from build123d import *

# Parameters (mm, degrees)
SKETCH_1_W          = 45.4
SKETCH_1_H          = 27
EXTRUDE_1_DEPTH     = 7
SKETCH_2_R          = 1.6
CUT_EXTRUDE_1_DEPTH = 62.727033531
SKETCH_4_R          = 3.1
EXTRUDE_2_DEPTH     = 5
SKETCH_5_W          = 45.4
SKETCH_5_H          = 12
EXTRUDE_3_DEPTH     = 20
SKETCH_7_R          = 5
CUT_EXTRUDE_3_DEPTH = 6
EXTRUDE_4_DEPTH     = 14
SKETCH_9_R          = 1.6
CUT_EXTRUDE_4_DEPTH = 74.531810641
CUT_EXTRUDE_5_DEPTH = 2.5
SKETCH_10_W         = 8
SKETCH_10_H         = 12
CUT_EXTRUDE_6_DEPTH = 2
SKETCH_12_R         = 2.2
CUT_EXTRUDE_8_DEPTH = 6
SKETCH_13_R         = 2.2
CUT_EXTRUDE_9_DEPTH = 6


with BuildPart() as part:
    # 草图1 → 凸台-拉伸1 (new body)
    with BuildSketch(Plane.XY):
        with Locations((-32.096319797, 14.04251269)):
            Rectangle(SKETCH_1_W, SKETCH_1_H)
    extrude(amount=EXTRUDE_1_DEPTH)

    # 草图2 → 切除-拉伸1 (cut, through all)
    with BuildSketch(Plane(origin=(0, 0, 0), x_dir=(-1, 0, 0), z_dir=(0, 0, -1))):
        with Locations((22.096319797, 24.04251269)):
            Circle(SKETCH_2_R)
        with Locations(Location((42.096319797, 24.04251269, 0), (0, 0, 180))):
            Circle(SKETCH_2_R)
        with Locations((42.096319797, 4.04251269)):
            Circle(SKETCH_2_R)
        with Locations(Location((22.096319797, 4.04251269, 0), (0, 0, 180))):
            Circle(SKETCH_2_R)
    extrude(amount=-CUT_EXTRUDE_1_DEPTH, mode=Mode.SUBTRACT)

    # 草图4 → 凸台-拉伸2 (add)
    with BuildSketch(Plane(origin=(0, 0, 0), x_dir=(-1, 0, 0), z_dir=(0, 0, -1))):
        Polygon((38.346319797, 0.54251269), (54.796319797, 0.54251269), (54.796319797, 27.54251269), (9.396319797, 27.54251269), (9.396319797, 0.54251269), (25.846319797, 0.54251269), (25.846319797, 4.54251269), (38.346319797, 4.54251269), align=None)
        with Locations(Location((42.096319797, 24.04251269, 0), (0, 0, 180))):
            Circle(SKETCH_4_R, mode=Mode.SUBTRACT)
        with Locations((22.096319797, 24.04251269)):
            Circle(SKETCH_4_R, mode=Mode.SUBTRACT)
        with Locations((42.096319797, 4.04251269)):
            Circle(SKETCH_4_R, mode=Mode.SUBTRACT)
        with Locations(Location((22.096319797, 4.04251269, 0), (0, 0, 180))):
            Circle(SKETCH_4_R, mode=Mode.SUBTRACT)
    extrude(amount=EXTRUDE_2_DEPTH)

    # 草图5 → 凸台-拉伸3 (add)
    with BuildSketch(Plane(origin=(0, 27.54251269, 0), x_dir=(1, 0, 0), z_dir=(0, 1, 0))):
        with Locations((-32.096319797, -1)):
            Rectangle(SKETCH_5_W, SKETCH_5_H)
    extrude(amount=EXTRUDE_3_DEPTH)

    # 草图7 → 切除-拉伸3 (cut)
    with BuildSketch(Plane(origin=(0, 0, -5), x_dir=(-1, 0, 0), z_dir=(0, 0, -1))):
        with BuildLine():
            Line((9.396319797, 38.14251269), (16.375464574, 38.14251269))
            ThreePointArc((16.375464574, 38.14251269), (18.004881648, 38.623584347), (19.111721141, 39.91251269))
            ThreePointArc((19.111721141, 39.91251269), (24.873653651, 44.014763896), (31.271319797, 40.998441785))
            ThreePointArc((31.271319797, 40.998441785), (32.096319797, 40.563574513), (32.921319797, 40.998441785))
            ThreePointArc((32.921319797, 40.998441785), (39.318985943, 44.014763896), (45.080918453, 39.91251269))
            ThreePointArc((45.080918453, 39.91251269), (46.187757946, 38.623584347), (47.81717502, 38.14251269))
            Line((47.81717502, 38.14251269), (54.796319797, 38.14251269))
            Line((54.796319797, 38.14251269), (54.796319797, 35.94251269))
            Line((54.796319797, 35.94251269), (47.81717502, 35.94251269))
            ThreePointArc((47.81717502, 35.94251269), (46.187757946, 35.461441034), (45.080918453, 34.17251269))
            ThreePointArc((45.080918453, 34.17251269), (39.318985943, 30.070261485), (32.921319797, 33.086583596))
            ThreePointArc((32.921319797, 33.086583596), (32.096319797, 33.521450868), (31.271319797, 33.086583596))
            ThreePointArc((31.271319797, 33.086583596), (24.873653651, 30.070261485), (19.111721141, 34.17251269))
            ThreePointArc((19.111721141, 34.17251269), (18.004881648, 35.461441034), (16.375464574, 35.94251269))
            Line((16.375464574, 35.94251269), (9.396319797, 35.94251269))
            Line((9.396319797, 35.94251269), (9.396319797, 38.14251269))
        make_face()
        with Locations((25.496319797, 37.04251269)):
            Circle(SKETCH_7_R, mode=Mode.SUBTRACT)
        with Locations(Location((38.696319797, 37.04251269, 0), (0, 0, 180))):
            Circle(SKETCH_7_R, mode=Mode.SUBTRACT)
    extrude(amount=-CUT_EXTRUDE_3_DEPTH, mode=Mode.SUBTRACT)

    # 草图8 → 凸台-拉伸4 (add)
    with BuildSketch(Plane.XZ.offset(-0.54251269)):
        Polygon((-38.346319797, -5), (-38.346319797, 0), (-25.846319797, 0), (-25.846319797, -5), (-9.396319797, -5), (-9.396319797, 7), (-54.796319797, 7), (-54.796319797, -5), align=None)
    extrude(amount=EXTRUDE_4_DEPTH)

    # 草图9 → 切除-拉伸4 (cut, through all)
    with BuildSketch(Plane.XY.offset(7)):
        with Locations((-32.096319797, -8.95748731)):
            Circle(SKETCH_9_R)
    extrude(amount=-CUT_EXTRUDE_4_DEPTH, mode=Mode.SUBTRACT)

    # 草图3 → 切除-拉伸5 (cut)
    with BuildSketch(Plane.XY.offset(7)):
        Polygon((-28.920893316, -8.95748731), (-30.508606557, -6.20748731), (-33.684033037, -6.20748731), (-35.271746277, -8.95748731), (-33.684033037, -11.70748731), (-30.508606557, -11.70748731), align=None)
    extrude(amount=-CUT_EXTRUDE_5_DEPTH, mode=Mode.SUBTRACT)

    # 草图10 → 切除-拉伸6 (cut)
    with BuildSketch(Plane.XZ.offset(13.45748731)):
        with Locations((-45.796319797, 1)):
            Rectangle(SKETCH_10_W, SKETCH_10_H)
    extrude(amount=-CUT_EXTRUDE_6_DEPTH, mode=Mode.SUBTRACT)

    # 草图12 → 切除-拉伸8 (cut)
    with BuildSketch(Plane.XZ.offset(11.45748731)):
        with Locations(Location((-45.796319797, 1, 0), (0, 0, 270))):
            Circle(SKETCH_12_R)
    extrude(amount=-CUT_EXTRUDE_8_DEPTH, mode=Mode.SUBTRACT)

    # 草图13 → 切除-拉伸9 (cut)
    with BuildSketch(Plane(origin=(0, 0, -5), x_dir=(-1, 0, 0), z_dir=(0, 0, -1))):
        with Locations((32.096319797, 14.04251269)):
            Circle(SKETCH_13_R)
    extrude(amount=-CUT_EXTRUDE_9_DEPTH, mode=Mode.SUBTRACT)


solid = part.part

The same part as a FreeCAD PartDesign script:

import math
import FreeCAD as App
import Part
import Sketcher

V = App.Vector
Q = App.Units.Quantity

doc = App.newDocument("Part")
body = doc.addObject("PartDesign::Body", "Body")

sketch1 = body.newObject("Sketcher::SketchObject", "Sketch")
sketch1.AttachmentSupport = (doc.getObject("XY_Plane"), [""])
sketch1.MapMode = "FlatFace"
sketch1.addGeometry([
    Part.LineSegment(V(-55, 28, 0), V(-55, 1, 0)),
    Part.LineSegment(V(-55, 1, 0), V(-9, 1, 0)),
    Part.LineSegment(V(-9, 1, 0), V(-9, 28, 0)),
    Part.LineSegment(V(-9, 28, 0), V(-55, 28, 0)),
], False)
sketch1.addConstraint([
    Sketcher.Constraint("Coincident", 0, 2, 1, 1),
    Sketcher.Constraint("Coincident", 1, 2, 2, 1),
    Sketcher.Constraint("Coincident", 2, 2, 3, 1),
    Sketcher.Constraint("Coincident", 3, 2, 0, 1),
    Sketcher.Constraint("Vertical", 0),
    Sketcher.Constraint("Horizontal", 1),
    Sketcher.Constraint("Vertical", 2),
    Sketcher.Constraint("Horizontal", 3),
    Sketcher.Constraint("DistanceY", 0, 2, 0, 1, Q("27 mm")),
    Sketcher.Constraint("DistanceX", 1, 1, 1, 2, Q("45.4 mm")),
    Sketcher.Constraint("DistanceX", 0, 2, -1, 1, Q("54.79632 mm")),
    Sketcher.Constraint("DistanceY", -1, 1, 0, 2, Q("0.542513 mm")),
])
pad1 = body.newObject("PartDesign::Pad", "Pad")
pad1.Profile = sketch1
pad1.Length = 7

sketch2 = body.newObject("Sketcher::SketchObject", "Sketch001")
sketch2.AttachmentSupport = (doc.getObject("XY_Plane"), [""])
sketch2.MapMode = "FlatFace"
sketch2.addGeometry([
    Part.Circle(V(-22.1, 24, 0), V(0, 0, 1), 1.6),
    Part.Circle(V(-42.1, 24, 0), V(0, 0, 1), 1.6),
    Part.Circle(V(-42.1, 4, 0), V(0, 0, 1), 1.6),
    Part.Circle(V(-22.1, 4, 0), V(0, 0, 1), 1.6),
], False)
sketch2.addConstraint([
    Sketcher.Constraint("Equal", 0, 1),
    Sketcher.Constraint("Equal", 1, 2),
    Sketcher.Constraint("Equal", 2, 3),
    Sketcher.Constraint("Horizontal", 0, 3, 1, 3),
    Sketcher.Constraint("Horizontal", 2, 3, 3, 3),
    Sketcher.Constraint("Vertical", 1, 3, 2, 3),
    Sketcher.Constraint("Vertical", 0, 3, 3, 3),
    Sketcher.Constraint("Diameter", 0, Q("3.2 mm")),
    Sketcher.Constraint("DistanceX", 1, 3, 0, 3, Q("20 mm")),
    Sketcher.Constraint("DistanceY", 2, 3, 1, 3, Q("20 mm")),
    Sketcher.Constraint("DistanceX", 0, 3, -1, 1, Q("22.09632 mm")),
    Sketcher.Constraint("DistanceY", -1, 1, 0, 3, Q("24.042513 mm")),
])
pocket1 = body.newObject("PartDesign::Pocket", "Pocket")
pocket1.Profile = sketch2
pocket1.Type = "ThroughAll"
pocket1.Reversed = True

sketch3 = body.newObject("Sketcher::SketchObject", "Sketch002")
sketch3.AttachmentSupport = (doc.getObject("XY_Plane"), [""])
sketch3.MapMode = "FlatFace"
sketch3.addGeometry([
    Part.LineSegment(V(-38.3, 0.5, 0), V(-54.8, 0.5, 0)),
    Part.LineSegment(V(-54.8, 0.5, 0), V(-54.8, 27.5, 0)),
    Part.LineSegment(V(-54.8, 27.5, 0), V(-9.4, 27.5, 0)),
    Part.LineSegment(V(-9.4, 27.5, 0), V(-9.4, 0.5, 0)),
    Part.LineSegment(V(-9.4, 0.5, 0), V(-25.8, 0.5, 0)),
    Part.LineSegment(V(-25.8, 0.5, 0), V(-25.8, 4.5, 0)),
    Part.LineSegment(V(-25.8, 4.5, 0), V(-38.3, 4.5, 0)),
    Part.LineSegment(V(-38.3, 4.5, 0), V(-38.3, 0.5, 0)),
    Part.Circle(V(-22.1, 4, 0), V(0, 0, 1), 3.1),
    Part.Circle(V(-42.1, 4, 0), V(0, 0, 1), 3.1),
    Part.Circle(V(-22.1, 24, 0), V(0, 0, 1), 3.1),
    Part.Circle(V(-42.1, 24, 0), V(0, 0, 1), 3.1),
], False)
sketch3.addConstraint([
    Sketcher.Constraint("Coincident", 0, 2, 1, 1),
    Sketcher.Constraint("Coincident", 1, 2, 2, 1),
    Sketcher.Constraint("Coincident", 2, 2, 3, 1),
    Sketcher.Constraint("Coincident", 3, 2, 4, 1),
    Sketcher.Constraint("Coincident", 4, 2, 5, 1),
    Sketcher.Constraint("Coincident", 5, 2, 6, 1),
    Sketcher.Constraint("Coincident", 6, 2, 7, 1),
    Sketcher.Constraint("Coincident", 7, 2, 0, 1),
    Sketcher.Constraint("Horizontal", 0),
    Sketcher.Constraint("Vertical", 1),
    Sketcher.Constraint("Horizontal", 2),
    Sketcher.Constraint("Vertical", 3),
    Sketcher.Constraint("Horizontal", 4),
    Sketcher.Constraint("Vertical", 5),
    Sketcher.Constraint("Horizontal", 6),
    Sketcher.Constraint("Vertical", 7),
    Sketcher.Constraint("Equal", 8, 9),
    Sketcher.Constraint("Equal", 9, 10),
    Sketcher.Constraint("Equal", 10, 11),
    Sketcher.Constraint("Horizontal", 8, 3, 9, 3),
    Sketcher.Constraint("Horizontal", 10, 3, 11, 3),
    Sketcher.Constraint("Horizontal", 0, 2, 3, 2),
    Sketcher.Constraint("Vertical", 8, 3, 10, 3),
    Sketcher.Constraint("Vertical", 9, 3, 11, 3),
    Sketcher.Constraint("Equal", 0, 4),
    Sketcher.Constraint("Diameter", 8, Q("6.2 mm")),
    Sketcher.Constraint("DistanceY", 1, 1, 1, 2, Q("27 mm")),
    Sketcher.Constraint("DistanceY", 5, 1, 5, 2, Q("4 mm")),
    Sketcher.Constraint("DistanceX", 2, 1, 2, 2, Q("45.4 mm")),
    Sketcher.Constraint("DistanceX", 6, 2, 6, 1, Q("12.5 mm")),
    Sketcher.Constraint("DistanceX", 9, 3, 8, 3, Q("20 mm")),
    Sketcher.Constraint("DistanceY", 8, 3, 10, 3, Q("20 mm")),
    Sketcher.Constraint("DistanceX", 0, 2, 9, 3, Q("12.7 mm")),
    Sketcher.Constraint("DistanceY", 0, 2, 9, 3, Q("3.5 mm")),
    Sketcher.Constraint("DistanceX", 8, 3, -1, 1, Q("22.09632 mm")),
    Sketcher.Constraint("DistanceY", -1, 1, 8, 3, Q("4.042513 mm")),
])
pad2 = body.newObject("PartDesign::Pad", "Pad001")
pad2.Profile = sketch3
pad2.Length = 5
pad2.Reversed = True

sketch4 = body.newObject("Sketcher::SketchObject", "Sketch003")
sketch4.AttachmentSupport = (doc.getObject("XZ_Plane"), [""])
sketch4.MapMode = "FlatFace"
sketch4.AttachmentOffset = App.Placement(V(0, 0, -27.542513), App.Rotation())
sketch4.addGeometry([
    Part.LineSegment(V(-55, -5, 0), V(-55, 7, 0)),
    Part.LineSegment(V(-55, 7, 0), V(-9, 7, 0)),
    Part.LineSegment(V(-9, 7, 0), V(-9, -5, 0)),
    Part.LineSegment(V(-9, -5, 0), V(-55, -5, 0)),
], False)
sketch4.addConstraint([
    Sketcher.Constraint("Coincident", 0, 2, 1, 1),
    Sketcher.Constraint("Coincident", 1, 2, 2, 1),
    Sketcher.Constraint("Coincident", 2, 2, 3, 1),
    Sketcher.Constraint("Coincident", 3, 2, 0, 1),
    Sketcher.Constraint("Vertical", 0),
    Sketcher.Constraint("Horizontal", 1),
    Sketcher.Constraint("Vertical", 2),
    Sketcher.Constraint("Horizontal", 3),
    Sketcher.Constraint("DistanceY", 0, 1, 0, 2, Q("12 mm")),
    Sketcher.Constraint("DistanceX", 1, 1, 1, 2, Q("45.4 mm")),
    Sketcher.Constraint("DistanceY", -1, 1, 0, 2, Q("7 mm")),
    Sketcher.Constraint("DistanceX", 0, 2, -1, 1, Q("54.79632 mm")),
])
pad3 = body.newObject("PartDesign::Pad", "Pad002")
pad3.Profile = sketch4
pad3.Length = 20
pad3.Reversed = True

sketch5 = body.newObject("Sketcher::SketchObject", "Sketch004")
sketch5.AttachmentSupport = (doc.getObject("XY_Plane"), [""])
sketch5.MapMode = "FlatFace"
sketch5.AttachmentOffset = App.Placement(V(0, 0, -5), App.Rotation())
sketch5.addGeometry([
    Part.LineSegment(V(-16.4, 38.1, 0), V(-9.4, 38.1, 0)),
    Part.LineSegment(V(-9.4, 38.1, 0), V(-9.4, 35.9, 0)),
    Part.LineSegment(V(-9.4, 35.9, 0), V(-16.4, 35.9, 0)),
    Part.ArcOfCircle(Part.Circle(V(-16.4, 32.9, 0), V(0, 0, 1), 3), math.radians(90), math.radians(156)),
    Part.ArcOfCircle(Part.Circle(V(-25.5, 37, 0), V(0, 0, 1), 7), math.radians(-146), math.radians(-24)),
    Part.ArcOfCircle(Part.Circle(V(-32.1, 32.5, 0), V(0, 0, 1), 1), math.radians(34), math.radians(146)),
    Part.ArcOfCircle(Part.Circle(V(-38.7, 37, 0), V(0, 0, 1), 7), math.radians(-156), math.radians(-34)),
    Part.ArcOfCircle(Part.Circle(V(-47.8, 32.9, 0), V(0, 0, 1), 3), math.radians(24), math.radians(90)),
    Part.LineSegment(V(-47.8, 35.9, 0), V(-54.8, 35.9, 0)),
    Part.LineSegment(V(-54.8, 35.9, 0), V(-54.8, 38.1, 0)),
    Part.LineSegment(V(-54.8, 38.1, 0), V(-47.8, 38.1, 0)),
    Part.ArcOfCircle(Part.Circle(V(-47.8, 41.1, 0), V(0, 0, 1), 3), math.radians(-90), math.radians(-24)),
    Part.ArcOfCircle(Part.Circle(V(-38.7, 37, 0), V(0, 0, 1), 7), math.radians(34), math.radians(156)),
    Part.ArcOfCircle(Part.Circle(V(-32.1, 41.6, 0), V(0, 0, 1), 1), math.radians(-146), math.radians(-34)),
    Part.ArcOfCircle(Part.Circle(V(-25.5, 37, 0), V(0, 0, 1), 7), math.radians(24), math.radians(146)),
    Part.ArcOfCircle(Part.Circle(V(-16.4, 41.1, 0), V(0, 0, 1), 3), math.radians(-156), math.radians(-90)),
    Part.Circle(V(-38.7, 37, 0), V(0, 0, 1), 5),
    Part.Circle(V(-25.5, 37, 0), V(0, 0, 1), 5),
], False)
sketch5.addConstraint([
    Sketcher.Constraint("Coincident", 0, 2, 1, 1),
    Sketcher.Constraint("Coincident", 1, 2, 2, 1),
    Sketcher.Constraint("Tangent", 2, 2, 3, 1),
    Sketcher.Constraint("Tangent", 3, 2, 4, 2),
    Sketcher.Constraint("Tangent", 4, 1, 5, 1),
    Sketcher.Constraint("Tangent", 5, 2, 6, 2),
    Sketcher.Constraint("Tangent", 6, 1, 7, 1),
    Sketcher.Constraint("Tangent", 7, 2, 8, 1),
    Sketcher.Constraint("Coincident", 8, 2, 9, 1),
    Sketcher.Constraint("Coincident", 9, 2, 10, 1),
    Sketcher.Constraint("Tangent", 10, 2, 11, 1),
    Sketcher.Constraint("Tangent", 11, 2, 12, 2),
    Sketcher.Constraint("Tangent", 12, 1, 13, 1),
    Sketcher.Constraint("Tangent", 13, 2, 14, 2),
    Sketcher.Constraint("Tangent", 14, 1, 15, 1),
    Sketcher.Constraint("Tangent", 15, 2, 0, 1),
    Sketcher.Constraint("Horizontal", 0),
    Sketcher.Constraint("Vertical", 1),
    Sketcher.Constraint("Horizontal", 2),
    Sketcher.Constraint("Horizontal", 8),
    Sketcher.Constraint("Vertical", 9),
    Sketcher.Constraint("Horizontal", 10),
    Sketcher.Constraint("Coincident", 12, 3, 6, 3),
    Sketcher.Constraint("Coincident", 14, 3, 4, 3),
    Sketcher.Constraint("Coincident", 16, 3, 6, 3),
    Sketcher.Constraint("Coincident", 17, 3, 4, 3),
    Sketcher.Constraint("Equal", 4, 6),
    Sketcher.Constraint("Equal", 3, 7),
    Sketcher.Constraint("Equal", 7, 11),
    Sketcher.Constraint("Equal", 6, 12),
    Sketcher.Constraint("Equal", 5, 13),
    Sketcher.Constraint("Equal", 12, 14),
    Sketcher.Constraint("Equal", 11, 15),
    Sketcher.Constraint("Equal", 16, 17),
    Sketcher.Constraint("Horizontal", 4, 3, 6, 3),
    Sketcher.Constraint("Horizontal", 3, 3, 7, 3),
    Sketcher.Constraint("Horizontal", 11, 3, 15, 3),
    Sketcher.Constraint("Vertical", 7, 3, 11, 3),
    Sketcher.Constraint("Equal", 2, 8),
    Sketcher.Constraint("Diameter", 16, Q("10 mm")),
    Sketcher.Constraint("Radius", 3, Q("3 mm")),
    Sketcher.Constraint("Radius", 4, Q("7 mm")),
    Sketcher.Constraint("Radius", 5, Q("1 mm")),
    Sketcher.Constraint("DistanceY", 1, 2, 1, 1, Q("2.2 mm")),
    Sketcher.Constraint("DistanceX", 5, 3, 4, 3, Q("6.6 mm")),
    Sketcher.Constraint("DistanceX", 14, 3, 0, 2, Q("16.1 mm")),
    Sketcher.Constraint("DistanceX", 4, 3, -1, 1, Q("25.49632 mm")),
    Sketcher.Constraint("DistanceY", -1, 1, 5, 3, Q("32.521451 mm")),
])
pocket2 = body.newObject("PartDesign::Pocket", "Pocket001")
pocket2.Profile = sketch5
pocket2.Length = 6
pocket2.Reversed = True

sketch6 = body.newObject("Sketcher::SketchObject", "Sketch005")
sketch6.AttachmentSupport = (doc.getObject("XZ_Plane"), [""])
sketch6.MapMode = "FlatFace"
sketch6.AttachmentOffset = App.Placement(V(0, 0, -0.542513), App.Rotation())
sketch6.addGeometry([
    Part.LineSegment(V(-38, -5, 0), V(-38, 0, 0)),
    Part.LineSegment(V(-38, 0, 0), V(-26, 0, 0)),
    Part.LineSegment(V(-26, 0, 0), V(-26, -5, 0)),
    Part.LineSegment(V(-26, -5, 0), V(-9, -5, 0)),
    Part.LineSegment(V(-9, -5, 0), V(-9, 7, 0)),
    Part.LineSegment(V(-9, 7, 0), V(-55, 7, 0)),
    Part.LineSegment(V(-55, 7, 0), V(-55, -5, 0)),
    Part.LineSegment(V(-55, -5, 0), V(-38, -5, 0)),
], False)
sketch6.addConstraint([
    Sketcher.Constraint("Coincident", 0, 2, 1, 1),
    Sketcher.Constraint("Coincident", 1, 2, 2, 1),
    Sketcher.Constraint("Coincident", 2, 2, 3, 1),
    Sketcher.Constraint("Coincident", 3, 2, 4, 1),
    Sketcher.Constraint("Coincident", 4, 2, 5, 1),
    Sketcher.Constraint("Coincident", 5, 2, 6, 1),
    Sketcher.Constraint("Coincident", 6, 2, 7, 1),
    Sketcher.Constraint("Coincident", 7, 2, 0, 1),
    Sketcher.Constraint("Vertical", 0),
    Sketcher.Constraint("Horizontal", 1),
    Sketcher.Constraint("Vertical", 2),
    Sketcher.Constraint("Horizontal", 3),
    Sketcher.Constraint("Vertical", 4),
    Sketcher.Constraint("Horizontal", 5),
    Sketcher.Constraint("Vertical", 6),
    Sketcher.Constraint("Horizontal", 7),
    Sketcher.Constraint("PointOnObject", 0, 2, -1),
    Sketcher.Constraint("Horizontal", 3, 2, 6, 2),
    Sketcher.Constraint("Equal", 3, 7),
    Sketcher.Constraint("DistanceY", 0, 1, 0, 2, Q("5 mm")),
    Sketcher.Constraint("DistanceY", 4, 1, 4, 2, Q("12 mm")),
    Sketcher.Constraint("DistanceX", 1, 1, 1, 2, Q("12.5 mm")),
    Sketcher.Constraint("DistanceX", 5, 2, 5, 1, Q("45.4 mm")),
    Sketcher.Constraint("DistanceX", 0, 2, -1, 1, Q("38.34632 mm")),
])
pad4 = body.newObject("PartDesign::Pad", "Pad003")
pad4.Profile = sketch6
pad4.Length = 14

sketch7 = body.newObject("Sketcher::SketchObject", "Sketch006")
sketch7.AttachmentSupport = (doc.getObject("XY_Plane"), [""])
sketch7.MapMode = "FlatFace"
sketch7.AttachmentOffset = App.Placement(V(0, 0, 7), App.Rotation())
sketch7.addGeometry(Part.Circle(V(-32.1, -9, 0), V(0, 0, 1), 1.6), False)
sketch7.addConstraint([
    Sketcher.Constraint("Diameter", 0, Q("3.2 mm")),
    Sketcher.Constraint("DistanceX", 0, 3, -1, 1, Q("32.09632 mm")),
    Sketcher.Constraint("DistanceY", 0, 3, -1, 1, Q("8.957487 mm")),
])
pocket3 = body.newObject("PartDesign::Pocket", "Pocket002")
pocket3.Profile = sketch7
pocket3.Type = "ThroughAll"

sketch8 = body.newObject("Sketcher::SketchObject", "Sketch007")
sketch8.AttachmentSupport = (doc.getObject("XY_Plane"), [""])
sketch8.MapMode = "FlatFace"
sketch8.AttachmentOffset = App.Placement(V(0, 0, 7), App.Rotation())
sketch8.addGeometry([
    Part.LineSegment(V(-28.9, -9, 0), V(-30.5, -6.2, 0)),
    Part.LineSegment(V(-30.5, -6.2, 0), V(-33.7, -6.2, 0)),
    Part.LineSegment(V(-33.7, -6.2, 0), V(-35.3, -9, 0)),
    Part.LineSegment(V(-35.3, -9, 0), V(-33.7, -11.7, 0)),
    Part.LineSegment(V(-33.7, -11.7, 0), V(-30.5, -11.7, 0)),
    Part.LineSegment(V(-30.5, -11.7, 0), V(-28.9, -9, 0)),
], False)
sketch8.addConstraint([
    Sketcher.Constraint("Coincident", 0, 2, 1, 1),
    Sketcher.Constraint("Coincident", 1, 2, 2, 1),
    Sketcher.Constraint("Coincident", 2, 2, 3, 1),
    Sketcher.Constraint("Coincident", 3, 2, 4, 1),
    Sketcher.Constraint("Coincident", 4, 2, 5, 1),
    Sketcher.Constraint("Coincident", 5, 2, 0, 1),
    Sketcher.Constraint("Horizontal", 1),
    Sketcher.Constraint("Horizontal", 4),
    Sketcher.Constraint("Parallel", 0, 3),
    Sketcher.Constraint("Parallel", 2, 5),
    Sketcher.Constraint("Horizontal", 2, 2, 5, 2),
    Sketcher.Constraint("Vertical", 1, 2, 3, 2),
    Sketcher.Constraint("Vertical", 0, 2, 4, 2),
    Sketcher.Constraint("Angle", 0, Q("120 deg")),
    Sketcher.Constraint("DistanceY", 3, 2, 1, 2, Q("5.5 mm")),
    Sketcher.Constraint("DistanceX", 1, 2, 1, 1, Q("3.175426 mm")),
    Sketcher.Constraint("DistanceX", 0, 2, -1, 1, Q("30.508607 mm")),
    Sketcher.Constraint("DistanceY", 0, 2, -1, 1, Q("6.207487 mm")),
])
pocket4 = body.newObject("PartDesign::Pocket", "Pocket003")
pocket4.Profile = sketch8
pocket4.Length = 2.5

sketch9 = body.newObject("Sketcher::SketchObject", "Sketch008")
sketch9.AttachmentSupport = (doc.getObject("XZ_Plane"), [""])
sketch9.MapMode = "FlatFace"
sketch9.AttachmentOffset = App.Placement(V(0, 0, 13.457487), App.Rotation())
sketch9.addGeometry([
    Part.LineSegment(V(-50, 7, 0), V(-50, -5, 0)),
    Part.LineSegment(V(-50, -5, 0), V(-42, -5, 0)),
    Part.LineSegment(V(-42, -5, 0), V(-42, 7, 0)),
    Part.LineSegment(V(-42, 7, 0), V(-50, 7, 0)),
], False)
sketch9.addConstraint([
    Sketcher.Constraint("Coincident", 0, 2, 1, 1),
    Sketcher.Constraint("Coincident", 1, 2, 2, 1),
    Sketcher.Constraint("Coincident", 2, 2, 3, 1),
    Sketcher.Constraint("Coincident", 3, 2, 0, 1),
    Sketcher.Constraint("Vertical", 0),
    Sketcher.Constraint("Horizontal", 1),
    Sketcher.Constraint("Vertical", 2),
    Sketcher.Constraint("Horizontal", 3),
    Sketcher.Constraint("DistanceX", 1, 1, 1, 2, Q("8 mm")),
    Sketcher.Constraint("DistanceY", 0, 2, 0, 1, Q("12 mm")),
    Sketcher.Constraint("DistanceY", 0, 2, -1, 1, Q("5 mm")),
    Sketcher.Constraint("DistanceX", 0, 2, -1, 1, Q("49.79632 mm")),
])
pocket5 = body.newObject("PartDesign::Pocket", "Pocket004")
pocket5.Profile = sketch9
pocket5.Length = 2

sketch10 = body.newObject("Sketcher::SketchObject", "Sketch009")
sketch10.AttachmentSupport = (doc.getObject("XZ_Plane"), [""])
sketch10.MapMode = "FlatFace"
sketch10.AttachmentOffset = App.Placement(V(0, 0, 11.457487), App.Rotation())
sketch10.addGeometry(Part.Circle(V(-45.8, 1, 0), V(0, 0, 1), 2.2), False)
sketch10.addConstraint([
    Sketcher.Constraint("Diameter", 0, Q("4.4 mm")),
    Sketcher.Constraint("DistanceY", -1, 1, 0, 3, Q("1 mm")),
    Sketcher.Constraint("DistanceX", 0, 3, -1, 1, Q("45.79632 mm")),
])
pocket6 = body.newObject("PartDesign::Pocket", "Pocket005")
pocket6.Profile = sketch10
pocket6.Length = 6

sketch11 = body.newObject("Sketcher::SketchObject", "Sketch010")
sketch11.AttachmentSupport = (doc.getObject("XY_Plane"), [""])
sketch11.MapMode = "FlatFace"
sketch11.AttachmentOffset = App.Placement(V(0, 0, -5), App.Rotation())
sketch11.addGeometry(Part.Circle(V(-32.1, 14, 0), V(0, 0, 1), 2.2), False)
sketch11.addConstraint([
    Sketcher.Constraint("Diameter", 0, Q("4.4 mm")),
    Sketcher.Constraint("DistanceX", 0, 3, -1, 1, Q("32.09632 mm")),
    Sketcher.Constraint("DistanceY", -1, 1, 0, 3, Q("14.042513 mm")),
])
pocket7 = body.newObject("PartDesign::Pocket", "Pocket006")
pocket7.Profile = sketch11
pocket7.Length = 6
pocket7.Reversed = True

doc.recompute()
